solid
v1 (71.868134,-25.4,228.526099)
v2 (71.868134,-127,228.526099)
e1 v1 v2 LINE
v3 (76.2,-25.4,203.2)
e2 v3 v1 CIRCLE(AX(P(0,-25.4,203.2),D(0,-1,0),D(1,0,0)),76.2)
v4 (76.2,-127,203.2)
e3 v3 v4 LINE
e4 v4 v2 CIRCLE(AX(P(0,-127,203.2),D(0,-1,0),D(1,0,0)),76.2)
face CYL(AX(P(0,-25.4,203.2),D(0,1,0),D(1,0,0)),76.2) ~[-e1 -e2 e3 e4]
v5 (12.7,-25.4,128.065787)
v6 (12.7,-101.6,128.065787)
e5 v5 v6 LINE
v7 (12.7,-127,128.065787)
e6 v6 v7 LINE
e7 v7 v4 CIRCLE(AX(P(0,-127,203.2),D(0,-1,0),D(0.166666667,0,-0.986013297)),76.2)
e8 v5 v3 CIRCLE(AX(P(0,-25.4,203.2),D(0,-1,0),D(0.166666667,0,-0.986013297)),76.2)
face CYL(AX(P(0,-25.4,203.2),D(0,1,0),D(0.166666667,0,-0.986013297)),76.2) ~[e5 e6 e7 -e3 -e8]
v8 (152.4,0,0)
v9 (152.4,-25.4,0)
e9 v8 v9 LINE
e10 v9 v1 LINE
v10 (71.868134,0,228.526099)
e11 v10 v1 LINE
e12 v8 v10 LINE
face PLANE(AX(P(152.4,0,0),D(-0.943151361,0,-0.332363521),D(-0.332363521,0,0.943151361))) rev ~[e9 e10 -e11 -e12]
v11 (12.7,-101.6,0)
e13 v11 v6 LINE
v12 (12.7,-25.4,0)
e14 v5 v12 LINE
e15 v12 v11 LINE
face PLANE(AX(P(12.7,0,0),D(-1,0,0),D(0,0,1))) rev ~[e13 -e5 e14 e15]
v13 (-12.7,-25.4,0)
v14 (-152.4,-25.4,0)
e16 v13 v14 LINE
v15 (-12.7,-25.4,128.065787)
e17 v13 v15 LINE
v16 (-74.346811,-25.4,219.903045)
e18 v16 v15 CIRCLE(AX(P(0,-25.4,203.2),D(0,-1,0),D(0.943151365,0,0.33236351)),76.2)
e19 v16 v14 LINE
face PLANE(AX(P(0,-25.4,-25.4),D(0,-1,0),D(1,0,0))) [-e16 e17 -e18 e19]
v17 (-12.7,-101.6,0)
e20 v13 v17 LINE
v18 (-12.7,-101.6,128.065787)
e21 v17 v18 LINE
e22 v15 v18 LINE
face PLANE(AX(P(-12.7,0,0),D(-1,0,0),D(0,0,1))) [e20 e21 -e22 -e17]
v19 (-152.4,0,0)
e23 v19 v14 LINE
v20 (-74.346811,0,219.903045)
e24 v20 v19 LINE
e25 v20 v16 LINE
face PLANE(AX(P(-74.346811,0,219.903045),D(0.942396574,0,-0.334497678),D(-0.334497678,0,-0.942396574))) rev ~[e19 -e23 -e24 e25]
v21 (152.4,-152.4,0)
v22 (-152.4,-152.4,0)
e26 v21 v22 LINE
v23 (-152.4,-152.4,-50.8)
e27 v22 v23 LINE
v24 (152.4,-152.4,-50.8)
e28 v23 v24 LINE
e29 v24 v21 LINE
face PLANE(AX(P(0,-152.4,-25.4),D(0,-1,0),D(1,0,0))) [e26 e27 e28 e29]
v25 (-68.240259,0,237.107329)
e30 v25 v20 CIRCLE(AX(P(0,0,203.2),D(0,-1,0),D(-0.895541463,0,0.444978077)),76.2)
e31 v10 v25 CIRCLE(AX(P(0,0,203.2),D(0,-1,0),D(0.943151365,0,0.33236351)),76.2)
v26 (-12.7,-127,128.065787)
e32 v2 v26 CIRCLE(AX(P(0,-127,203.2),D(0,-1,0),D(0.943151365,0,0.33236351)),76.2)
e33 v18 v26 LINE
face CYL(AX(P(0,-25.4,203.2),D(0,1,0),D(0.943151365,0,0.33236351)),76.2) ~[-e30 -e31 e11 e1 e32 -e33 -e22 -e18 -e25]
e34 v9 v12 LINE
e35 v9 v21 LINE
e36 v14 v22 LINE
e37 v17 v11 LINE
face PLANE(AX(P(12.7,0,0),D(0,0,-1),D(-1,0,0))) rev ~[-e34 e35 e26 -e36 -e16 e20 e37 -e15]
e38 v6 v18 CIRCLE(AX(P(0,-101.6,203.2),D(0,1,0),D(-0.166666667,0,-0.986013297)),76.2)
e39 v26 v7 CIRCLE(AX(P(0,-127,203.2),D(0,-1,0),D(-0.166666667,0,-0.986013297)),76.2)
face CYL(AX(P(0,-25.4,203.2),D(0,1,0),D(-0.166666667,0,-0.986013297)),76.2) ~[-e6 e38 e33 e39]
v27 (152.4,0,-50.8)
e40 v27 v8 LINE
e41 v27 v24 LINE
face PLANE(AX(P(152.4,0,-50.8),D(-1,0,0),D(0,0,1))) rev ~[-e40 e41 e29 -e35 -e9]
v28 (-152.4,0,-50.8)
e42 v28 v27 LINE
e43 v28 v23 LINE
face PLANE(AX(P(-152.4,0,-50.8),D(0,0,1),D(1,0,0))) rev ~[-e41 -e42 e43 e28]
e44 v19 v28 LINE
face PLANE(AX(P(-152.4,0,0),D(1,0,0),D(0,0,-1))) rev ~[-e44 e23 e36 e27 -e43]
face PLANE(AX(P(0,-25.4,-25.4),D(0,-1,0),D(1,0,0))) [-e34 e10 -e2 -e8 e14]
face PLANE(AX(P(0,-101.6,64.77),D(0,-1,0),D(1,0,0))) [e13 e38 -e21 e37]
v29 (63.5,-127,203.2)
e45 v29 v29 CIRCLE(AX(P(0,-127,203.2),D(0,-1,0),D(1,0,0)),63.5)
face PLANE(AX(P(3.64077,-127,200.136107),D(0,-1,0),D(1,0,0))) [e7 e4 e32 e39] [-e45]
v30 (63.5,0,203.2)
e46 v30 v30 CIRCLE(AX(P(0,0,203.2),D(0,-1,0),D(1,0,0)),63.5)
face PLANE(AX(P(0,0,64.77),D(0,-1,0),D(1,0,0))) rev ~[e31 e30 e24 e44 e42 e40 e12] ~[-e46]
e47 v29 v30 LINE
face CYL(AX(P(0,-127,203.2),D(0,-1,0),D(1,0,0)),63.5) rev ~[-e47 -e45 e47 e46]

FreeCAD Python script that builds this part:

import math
import FreeCAD as App
import Part
import Sketcher

V = App.Vector
Q = App.Units.Quantity

doc = App.newDocument("Part")
body = doc.addObject("PartDesign::Body", "Body")

sketch1 = doc.addObject("Sketcher::SketchObject", "Sketch")
body.addObject(sketch1)
sketch1.AttachmentSupport = (doc.XZ_Plane, [""])
sketch1.MapMode = "FlatFace"
sketch1.addGeometry(Part.LineSegment(V(-152, 0, 0), V(-152, -51, 0)), False)
sketch1.addGeometry(Part.LineSegment(V(-152, -51, 0), V(152, -51, 0)), False)
sketch1.addGeometry(Part.LineSegment(V(152, -51, 0), V(152, 0, 0)), False)
sketch1.addGeometry(Part.LineSegment(V(152, 0, 0), V(-152, 0, 0)), False)
sketch1.addConstraint(Sketcher.Constraint("Coincident", 0, 2, 1, 1))
sketch1.addConstraint(Sketcher.Constraint("Coincident", 1, 2, 2, 1))
sketch1.addConstraint(Sketcher.Constraint("Coincident", 2, 2, 3, 1))
sketch1.addConstraint(Sketcher.Constraint("Coincident", 3, 2, 0, 1))
sketch1.addConstraint(Sketcher.Constraint("Vertical", 0))
sketch1.addConstraint(Sketcher.Constraint("Horizontal", 1))
sketch1.addConstraint(Sketcher.Constraint("Vertical", 2))
sketch1.addConstraint(Sketcher.Constraint("Horizontal", 3))
sketch1.addConstraint(Sketcher.Constraint("Symmetric", 2, 2, 3, 2, -1, 1))
sketch1.addConstraint(Sketcher.Constraint("DistanceX", 1, 1, 1, 2, Q("12 in")))
sketch1.addConstraint(Sketcher.Constraint("DistanceY", 0, 2, 0, 1, Q("2 in")))
pad1 = doc.addObject("PartDesign::Pad", "Pad")
body.addObject(pad1)
pad1.Profile = sketch1
pad1.Length = Q("6 in")

sketch2 = doc.addObject("Sketcher::SketchObject", "Sketch001")
body.addObject(sketch2)
sketch2.AttachmentSupport = (doc.XZ_Plane, [""])
sketch2.MapMode = "FlatFace"
sketch2.addGeometry(Part.LineSegment(V(-152, 0, 0), V(-152, -51, 0)), False)
sketch2.addGeometry(Part.LineSegment(V(-152, -51, 0), V(152, -51, 0)), False)
sketch2.addGeometry(Part.LineSegment(V(152, -51, 0), V(152, 0, 0)), False)
sketch2.addGeometry(Part.LineSegment(V(152, 0, 0), V(72, 229, 0)), False)
sketch2.addGeometry(Part.ArcOfCircle(Part.Circle(V(0, 203, 0), V(0, 0, 1), 76), math.radians(19), math.radians(154)), False)
sketch2.addGeometry(Part.ArcOfCircle(Part.Circle(V(0, 203, 0), V(0, 0, 1), 76), math.radians(153.58), math.radians(167.34)), False)
sketch2.addGeometry(Part.LineSegment(V(-74, 220, 0), V(-152, 0, 0)), False)
sketch2.addGeometry(Part.LineSegment(V(13, 128, 0), V(13, 0, 0)), False)
sketch2.addGeometry(Part.LineSegment(V(13, 0, 0), V(-13, 0, 0)), False)
sketch2.addGeometry(Part.LineSegment(V(-13, 0, 0), V(-13, 128, 0)), False)
sketch2.addGeometry(Part.ArcOfCircle(Part.Circle(V(0, 203, 0), V(0, 0, 1), 76), math.radians(-99.59), math.radians(-80.41)), False)
sketch2.addConstraint(Sketcher.Constraint("Coincident", 0, 2, 1, 1))
sketch2.addConstraint(Sketcher.Constraint("Coincident", 1, 2, 2, 1))
sketch2.addConstraint(Sketcher.Constraint("Coincident", 2, 2, 3, 1))
sketch2.addConstraint(Sketcher.Constraint("Tangent", 3, 2, 4, 1))
sketch2.addConstraint(Sketcher.Constraint("Tangent", 4, 2, 5, 1))
sketch2.addConstraint(Sketcher.Constraint("Coincident", 5, 2, 6, 1))
sketch2.addConstraint(Sketcher.Constraint("Coincident", 6, 2, 0, 1))
sketch2.addConstraint(Sketcher.Constraint("Coincident", 7, 2, 8, 1))
sketch2.addConstraint(Sketcher.Constraint("Coincident", 8, 2, 9, 1))
sketch2.addConstraint(Sketcher.Constraint("Coincident", 9, 2, 10, 1))
sketch2.addConstraint(Sketcher.Constraint("Coincident", 10, 2, 7, 1))
sketch2.addConstraint(Sketcher.Constraint("Vertical", 0))
sketch2.addConstraint(Sketcher.Constraint("Horizontal", 1))
sketch2.addConstraint(Sketcher.Constraint("Vertical", 2))
sketch2.addConstraint(Sketcher.Constraint("Vertical", 7))
sketch2.addConstraint(Sketcher.Constraint("Horizontal", 8))
sketch2.addConstraint(Sketcher.Constraint("Vertical", 9))
sketch2.addConstraint(Sketcher.Constraint("Coincident", 10, 3, 4, 3))
sketch2.addConstraint(Sketcher.Constraint("Equal", 4, 5))
sketch2.addConstraint(Sketcher.Constraint("Equal", 5, 10))
sketch2.addConstraint(Sketcher.Constraint("Symmetric", 2, 2, 6, 2, -1, 1))
sketch2.addConstraint(Sketcher.Constraint("Symmetric", 7, 2, 8, 2, -1, 1))
sketch2.addConstraint(Sketcher.Constraint("PointOnObject", 4, 3, -2))
sketch2.addConstraint(Sketcher.Constraint("PointOnObject", 2, 2, -1))
sketch2.addConstraint(Sketcher.Constraint("Radius", 4, Q("3 in")))
sketch2.addConstraint(Sketcher.Constraint("DistanceX", 1, 1, 1, 2, Q("12 in")))
sketch2.addConstraint(Sketcher.Constraint("DistanceX", 8, 2, 8, 1, Q("1 in")))
sketch2.addConstraint(Sketcher.Constraint("DistanceY", 0, 2, 0, 1, Q("2 in")))
sketch2.addConstraint(Sketcher.Constraint("DistanceY", -1, 1, 4, 3, Q("8 in")))
sketch2.addConstraint(Sketcher.Constraint("DistanceX", 4, 2, -1, 1, Q("68.240259 mm")))
sketch2.addConstraint(Sketcher.Constraint("DistanceX", 5, 2, -1, 1, Q("74.346811 mm")))
pad2 = doc.addObject("PartDesign::Pad", "Pad001")
body.addObject(pad2)
pad2.Profile = sketch2
pad2.Length = Q("1 in")

sketch3 = doc.addObject("Sketcher::SketchObject", "Sketch002")
body.addObject(sketch3)
sketch3.AttachmentSupport = (doc.XZ_Plane, [""])
sketch3.MapMode = "FlatFace"
sketch3.AttachmentOffset = App.Placement(V(0, 0, 1 * 25.4), App.Rotation())
sketch3.addGeometry(Part.ArcOfCircle(Part.Circle(V(0, 203, 0), V(0, 0, 1), 76), math.radians(-80), math.radians(0)), False)
sketch3.addGeometry(Part.ArcOfCircle(Part.Circle(V(0, 203, 0), V(0, 0, 1), 76), math.radians(0), math.radians(19.41)), False)
sketch3.addGeometry(Part.ArcOfCircle(Part.Circle(V(0, 203, 0), V(0, 0, 1), 76), math.radians(19), math.radians(260)), False)
sketch3.addGeometry(Part.ArcOfCircle(Part.Circle(V(0, 203, 0), V(0, 0, 1), 76), math.radians(-99.59), math.radians(-80.41)), False)
sketch3.addConstraint(Sketcher.Constraint("Tangent", 0, 2, 1, 1))
sketch3.addConstraint(Sketcher.Constraint("Tangent", 1, 2, 2, 1))
sketch3.addConstraint(Sketcher.Constraint("Tangent", 2, 2, 3, 1))
sketch3.addConstraint(Sketcher.Constraint("Tangent", 3, 2, 0, 1))
sketch3.addConstraint(Sketcher.Constraint("Equal", 0, 1))
sketch3.addConstraint(Sketcher.Constraint("Symmetric", 2, 2, 3, 2, -2))
sketch3.addConstraint(Sketcher.Constraint("Horizontal", 3, 3, 0, 2))
sketch3.addConstraint(Sketcher.Constraint("Radius", 0, Q("3 in")))
sketch3.addConstraint(Sketcher.Constraint("DistanceY", -1, 1, 0, 3, Q("8 in")))
sketch3.addConstraint(Sketcher.Constraint("DistanceX", 2, 2, 3, 2, Q("1 in")))
sketch3.addConstraint(Sketcher.Constraint("DistanceY", -1, 1, 1, 2, Q("228.526099 mm")))
pad3 = doc.addObject("PartDesign::Pad", "Pad002")
body.addObject(pad3)
pad3.Profile = sketch3
pad3.Length = Q("4 in")

sketch4 = doc.addObject("Sketcher::SketchObject", "Sketch003")
body.addObject(sketch4)
sketch4.AttachmentSupport = (doc.XZ_Plane, [""])
sketch4.MapMode = "FlatFace"
sketch4.addGeometry(Part.LineSegment(V(-13, 130, 0), V(-13, 0, 0)), False)
sketch4.addGeometry(Part.LineSegment(V(-13, 0, 0), V(13, 0, 0)), False)
sketch4.addGeometry(Part.LineSegment(V(13, 0, 0), V(13, 130, 0)), False)
sketch4.addGeometry(Part.LineSegment(V(13, 130, 0), V(-13, 130, 0)), False)
sketch4.addConstraint(Sketcher.Constraint("Coincident", 0, 2, 1, 1))
sketch4.addConstraint(Sketcher.Constraint("Coincident", 1, 2, 2, 1))
sketch4.addConstraint(Sketcher.Constraint("Coincident", 2, 2, 3, 1))
sketch4.addConstraint(Sketcher.Constraint("Coincident", 3, 2, 0, 1))
sketch4.addConstraint(Sketcher.Constraint("Vertical", 0))
sketch4.addConstraint(Sketcher.Constraint("Horizontal", 1))
sketch4.addConstraint(Sketcher.Constraint("Vertical", 2))
sketch4.addConstraint(Sketcher.Constraint("Horizontal", 3))
sketch4.addConstraint(Sketcher.Constraint("Symmetric", 0, 2, 1, 2, -1, 1))
sketch4.addConstraint(Sketcher.Constraint("DistanceX", 1, 1, 1, 2, Q("1 in")))
sketch4.addConstraint(Sketcher.Constraint("DistanceY", 0, 2, 0, 1, Q("5.1 in")))
pad4 = doc.addObject("PartDesign::Pad", "Pad003")
body.addObject(pad4)
pad4.Profile = sketch4
pad4.Length = Q("4 in")

sketch5 = doc.addObject("Sketcher::SketchObject", "Sketch004")
body.addObject(sketch5)
sketch5.AttachmentSupport = (doc.XZ_Plane, [""])
sketch5.MapMode = "FlatFace"
sketch5.AttachmentOffset = App.Placement(V(0, 0, 5 * 25.4), App.Rotation())
sketch5.addGeometry(Part.Circle(V(0, 203, 0), V(0, 0, 1), 64), False)
sketch5.addConstraint(Sketcher.Constraint("PointOnObject", 0, 3, -2))
sketch5.addConstraint(Sketcher.Constraint("Diameter", 0, Q("5 in")))
sketch5.addConstraint(Sketcher.Constraint("DistanceY", -1, 1, 0, 3, Q("8 in")))
pocket1 = doc.addObject("PartDesign::Pocket", "Pocket")
body.addObject(pocket1)
pocket1.Profile = sketch5
pocket1.Type = "ThroughAll"

doc.recompute()
